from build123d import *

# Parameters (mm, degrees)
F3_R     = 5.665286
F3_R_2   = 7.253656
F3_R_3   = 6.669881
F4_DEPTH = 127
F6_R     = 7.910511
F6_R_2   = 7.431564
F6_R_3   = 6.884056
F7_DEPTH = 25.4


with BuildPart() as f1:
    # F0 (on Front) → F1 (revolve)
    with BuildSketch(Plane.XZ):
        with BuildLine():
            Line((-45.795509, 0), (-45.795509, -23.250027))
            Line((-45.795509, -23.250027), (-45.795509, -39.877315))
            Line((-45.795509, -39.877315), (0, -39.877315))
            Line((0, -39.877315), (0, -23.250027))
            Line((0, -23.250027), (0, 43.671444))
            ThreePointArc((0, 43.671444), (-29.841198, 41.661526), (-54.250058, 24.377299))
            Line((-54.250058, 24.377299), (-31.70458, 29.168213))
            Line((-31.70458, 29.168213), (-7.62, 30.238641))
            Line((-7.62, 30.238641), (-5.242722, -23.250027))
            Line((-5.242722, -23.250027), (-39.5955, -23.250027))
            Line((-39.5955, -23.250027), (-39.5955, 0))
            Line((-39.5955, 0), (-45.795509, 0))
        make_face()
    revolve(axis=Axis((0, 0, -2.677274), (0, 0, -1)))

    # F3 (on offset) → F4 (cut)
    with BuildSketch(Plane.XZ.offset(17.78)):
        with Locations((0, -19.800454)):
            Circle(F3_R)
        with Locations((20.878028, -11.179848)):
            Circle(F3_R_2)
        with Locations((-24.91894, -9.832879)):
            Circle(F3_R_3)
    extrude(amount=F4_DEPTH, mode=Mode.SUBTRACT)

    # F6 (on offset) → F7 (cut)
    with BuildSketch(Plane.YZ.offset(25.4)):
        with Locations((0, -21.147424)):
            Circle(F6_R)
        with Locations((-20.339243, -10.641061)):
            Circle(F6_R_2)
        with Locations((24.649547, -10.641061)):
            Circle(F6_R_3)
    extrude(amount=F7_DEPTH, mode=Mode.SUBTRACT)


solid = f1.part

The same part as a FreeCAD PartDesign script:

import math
import FreeCAD as App
import Part
import Sketcher

V = App.Vector
Q = App.Units.Quantity

doc = App.newDocument("Part")
params = doc.addObject("Spreadsheet::Sheet", "Params")
for row, (alias, value) in enumerate([
    ("revolution_angle", "360 deg"),
    ("pocket1_length", "5 in"),
    ("pocket2_length", "1 in"),
], start=1):
    params.set(f"A{row}", alias)
    params.set(f"B{row}", "=" + value)
    params.setAlias(f"B{row}", alias)

body = doc.addObject("PartDesign::Body", "Body")

sketch1 = body.newObject("Sketcher::SketchObject", "Sketch")
sketch1.AttachmentSupport = (doc.getObject("XZ_Plane"), [""])
sketch1.MapMode = "FlatFace"
sketch1.addGeometry([
    Part.LineSegment(V(-46, 0, 0), V(-46, -40, 0)),
    Part.LineSegment(V(-46, -40, 0), V(0, -40, 0)),
    Part.LineSegment(V(0, -40, 0), V(0, 44, 0)),
    Part.ArcOfCircle(Part.Circle(V(-11, -10, 0), V(0, 0, 1), 55), math.radians(78), math.radians(141)),
    Part.LineSegment(V(-54, 24, 0), V(-32, 29, 0)),
    Part.LineSegment(V(-32, 29, 0), V(-8, 30, 0)),
    Part.LineSegment(V(-8, 30, 0), V(-5, -23, 0)),
    Part.LineSegment(V(-5, -23, 0), V(-40, -23, 0)),
    Part.LineSegment(V(-40, -23, 0), V(-40, 0, 0)),
    Part.LineSegment(V(-40, 0, 0), V(-46, 0, 0)),
], False)
sketch1.addConstraint([
    Sketcher.Constraint("Coincident", 0, 2, 1, 1),
    Sketcher.Constraint("Coincident", 1, 2, 2, 1),
    Sketcher.Constraint("Coincident", 2, 2, 3, 1),
    Sketcher.Constraint("Coincident", 3, 2, 4, 1),
    Sketcher.Constraint("Coincident", 4, 2, 5, 1),
    Sketcher.Constraint("Coincident", 5, 2, 6, 1),
    Sketcher.Constraint("Coincident", 6, 2, 7, 1),
    Sketcher.Constraint("Coincident", 7, 2, 8, 1),
    Sketcher.Constraint("Coincident", 8, 2, 9, 1),
    Sketcher.Constraint("Coincident", 9, 2, 0, 1),
    Sketcher.Constraint("Vertical", 0),
    Sketcher.Constraint("Horizontal", 1),
    Sketcher.Constraint("Vertical", 2),
    Sketcher.Constraint("Horizontal", 7),
    Sketcher.Constraint("Vertical", 8),
    Sketcher.Constraint("Horizontal", 9),
    Sketcher.Constraint("PointOnObject", 1, 2, -2),
    Sketcher.Constraint("PointOnObject", 8, 2, -1),
    Sketcher.Constraint("Perpendicular", 5, 6),
    Sketcher.Constraint("DistanceX", 5, 2, -1, 1, Q("0.3 in")),
    Sketcher.Constraint("Radius", 3, 55.178939),
    Sketcher.Constraint("DistanceX", 1, 1, 1, 2, 45.795509),
    Sketcher.Constraint("DistanceX", 9, 2, 9, 1, 6.200009),
    Sketcher.Constraint("DistanceY", 2, 1, 2, 2, 83.548759),
    Sketcher.Constraint("DistanceY", -1, 1, 3, 2, 24.377299),
    Sketcher.Constraint("Distance", 6, 53.54147),
    Sketcher.Constraint("DistanceX", 7, 2, 7, 1, 34.352778),
    Sketcher.Constraint("DistanceY", 0, 2, 0, 1, 39.877315),
    Sketcher.Constraint("DistanceY", 8, 1, 8, 2, 23.250027),
    Sketcher.Constraint("DistanceX", 4, 2, -1, 1, 31.70458),
    Sketcher.Constraint("DistanceY", 3, 3, 2, 2, 53.998741),
])
revolution = body.newObject("PartDesign::Revolution", "Revolution")
revolution.Profile = sketch1
revolution.ReferenceAxis = (sketch1, ["V_Axis"])
revolution.setExpression("Angle", "Params.revolution_angle")

sketch2 = body.newObject("Sketcher::SketchObject", "Sketch001")
sketch2.AttachmentSupport = (doc.getObject("XZ_Plane"), [""])
sketch2.MapMode = "FlatFace"
sketch2.AttachmentOffset = App.Placement(V(0, 0, 0.7 * 25.4), App.Rotation())
sketch2.addGeometry([
    Part.Circle(V(0, -20, 0), V(0, 0, 1), 6),
    Part.Circle(V(21, -11, 0), V(0, 0, 1), 7),
    Part.Circle(V(-25, -10, 0), V(0, 0, 1), 7),
], False)
sketch2.addConstraint([
    Sketcher.Constraint("PointOnObject", 0, 3, -2),
    Sketcher.Constraint("Diameter", 0, 11.330572),
    Sketcher.Constraint("Diameter", 1, 14.507312),
    Sketcher.Constraint("Diameter", 2, 13.339762),
    Sketcher.Constraint("DistanceX", -1, 1, 1, 3, 20.878028),
    Sketcher.Constraint("DistanceX", 2, 3, -1, 1, 24.91894),
    Sketcher.Constraint("DistanceY", 2, 3, -1, 1, 9.832879),
    Sketcher.Constraint("DistanceY", 1, 3, 2, 3, 1.346969),
    Sketcher.Constraint("DistanceY", 0, 3, -1, 1, 19.800454),
])
pocket1 = body.newObject("PartDesign::Pocket", "Pocket")
pocket1.Profile = sketch2
pocket1.setExpression("Length", "Params.pocket1_length")
pocket1.Reversed = True

sketch3 = body.newObject("Sketcher::SketchObject", "Sketch002")
sketch3.AttachmentSupport = (doc.getObject("YZ_Plane"), [""])
sketch3.MapMode = "FlatFace"
sketch3.AttachmentOffset = App.Placement(V(0, 0, 1 * 25.4), App.Rotation())
sketch3.addGeometry([
    Part.Circle(V(0, -21, 0), V(0, 0, 1), 8),
    Part.Circle(V(-20, -11, 0), V(0, 0, 1), 7),
    Part.Circle(V(25, -11, 0), V(0, 0, 1), 7),
], False)
sketch3.addConstraint([
    Sketcher.Constraint("PointOnObject", 0, 3, -2),
    Sketcher.Constraint("Horizontal", 1, 3, 2, 3),
    Sketcher.Constraint("Diameter", 0, 15.821022),
    Sketcher.Constraint("Diameter", 1, 14.863128),
    Sketcher.Constraint("Diameter", 2, 13.768112),
    Sketcher.Constraint("DistanceY", 1, 3, -1, 1, 10.641061),
    Sketcher.Constraint("DistanceX", 1, 3, 2, 3, 44.98879),
    Sketcher.Constraint("DistanceY", 0, 3, -1, 1, 21.147424),
    Sketcher.Constraint("DistanceX", 1, 3, -1, 1, 20.339243),
])
pocket2 = body.newObject("PartDesign::Pocket", "Pocket001")
pocket2.Profile = sketch3
pocket2.setExpression("Length", "Params.pocket2_length")
pocket2.Reversed = True

doc.recompute()
